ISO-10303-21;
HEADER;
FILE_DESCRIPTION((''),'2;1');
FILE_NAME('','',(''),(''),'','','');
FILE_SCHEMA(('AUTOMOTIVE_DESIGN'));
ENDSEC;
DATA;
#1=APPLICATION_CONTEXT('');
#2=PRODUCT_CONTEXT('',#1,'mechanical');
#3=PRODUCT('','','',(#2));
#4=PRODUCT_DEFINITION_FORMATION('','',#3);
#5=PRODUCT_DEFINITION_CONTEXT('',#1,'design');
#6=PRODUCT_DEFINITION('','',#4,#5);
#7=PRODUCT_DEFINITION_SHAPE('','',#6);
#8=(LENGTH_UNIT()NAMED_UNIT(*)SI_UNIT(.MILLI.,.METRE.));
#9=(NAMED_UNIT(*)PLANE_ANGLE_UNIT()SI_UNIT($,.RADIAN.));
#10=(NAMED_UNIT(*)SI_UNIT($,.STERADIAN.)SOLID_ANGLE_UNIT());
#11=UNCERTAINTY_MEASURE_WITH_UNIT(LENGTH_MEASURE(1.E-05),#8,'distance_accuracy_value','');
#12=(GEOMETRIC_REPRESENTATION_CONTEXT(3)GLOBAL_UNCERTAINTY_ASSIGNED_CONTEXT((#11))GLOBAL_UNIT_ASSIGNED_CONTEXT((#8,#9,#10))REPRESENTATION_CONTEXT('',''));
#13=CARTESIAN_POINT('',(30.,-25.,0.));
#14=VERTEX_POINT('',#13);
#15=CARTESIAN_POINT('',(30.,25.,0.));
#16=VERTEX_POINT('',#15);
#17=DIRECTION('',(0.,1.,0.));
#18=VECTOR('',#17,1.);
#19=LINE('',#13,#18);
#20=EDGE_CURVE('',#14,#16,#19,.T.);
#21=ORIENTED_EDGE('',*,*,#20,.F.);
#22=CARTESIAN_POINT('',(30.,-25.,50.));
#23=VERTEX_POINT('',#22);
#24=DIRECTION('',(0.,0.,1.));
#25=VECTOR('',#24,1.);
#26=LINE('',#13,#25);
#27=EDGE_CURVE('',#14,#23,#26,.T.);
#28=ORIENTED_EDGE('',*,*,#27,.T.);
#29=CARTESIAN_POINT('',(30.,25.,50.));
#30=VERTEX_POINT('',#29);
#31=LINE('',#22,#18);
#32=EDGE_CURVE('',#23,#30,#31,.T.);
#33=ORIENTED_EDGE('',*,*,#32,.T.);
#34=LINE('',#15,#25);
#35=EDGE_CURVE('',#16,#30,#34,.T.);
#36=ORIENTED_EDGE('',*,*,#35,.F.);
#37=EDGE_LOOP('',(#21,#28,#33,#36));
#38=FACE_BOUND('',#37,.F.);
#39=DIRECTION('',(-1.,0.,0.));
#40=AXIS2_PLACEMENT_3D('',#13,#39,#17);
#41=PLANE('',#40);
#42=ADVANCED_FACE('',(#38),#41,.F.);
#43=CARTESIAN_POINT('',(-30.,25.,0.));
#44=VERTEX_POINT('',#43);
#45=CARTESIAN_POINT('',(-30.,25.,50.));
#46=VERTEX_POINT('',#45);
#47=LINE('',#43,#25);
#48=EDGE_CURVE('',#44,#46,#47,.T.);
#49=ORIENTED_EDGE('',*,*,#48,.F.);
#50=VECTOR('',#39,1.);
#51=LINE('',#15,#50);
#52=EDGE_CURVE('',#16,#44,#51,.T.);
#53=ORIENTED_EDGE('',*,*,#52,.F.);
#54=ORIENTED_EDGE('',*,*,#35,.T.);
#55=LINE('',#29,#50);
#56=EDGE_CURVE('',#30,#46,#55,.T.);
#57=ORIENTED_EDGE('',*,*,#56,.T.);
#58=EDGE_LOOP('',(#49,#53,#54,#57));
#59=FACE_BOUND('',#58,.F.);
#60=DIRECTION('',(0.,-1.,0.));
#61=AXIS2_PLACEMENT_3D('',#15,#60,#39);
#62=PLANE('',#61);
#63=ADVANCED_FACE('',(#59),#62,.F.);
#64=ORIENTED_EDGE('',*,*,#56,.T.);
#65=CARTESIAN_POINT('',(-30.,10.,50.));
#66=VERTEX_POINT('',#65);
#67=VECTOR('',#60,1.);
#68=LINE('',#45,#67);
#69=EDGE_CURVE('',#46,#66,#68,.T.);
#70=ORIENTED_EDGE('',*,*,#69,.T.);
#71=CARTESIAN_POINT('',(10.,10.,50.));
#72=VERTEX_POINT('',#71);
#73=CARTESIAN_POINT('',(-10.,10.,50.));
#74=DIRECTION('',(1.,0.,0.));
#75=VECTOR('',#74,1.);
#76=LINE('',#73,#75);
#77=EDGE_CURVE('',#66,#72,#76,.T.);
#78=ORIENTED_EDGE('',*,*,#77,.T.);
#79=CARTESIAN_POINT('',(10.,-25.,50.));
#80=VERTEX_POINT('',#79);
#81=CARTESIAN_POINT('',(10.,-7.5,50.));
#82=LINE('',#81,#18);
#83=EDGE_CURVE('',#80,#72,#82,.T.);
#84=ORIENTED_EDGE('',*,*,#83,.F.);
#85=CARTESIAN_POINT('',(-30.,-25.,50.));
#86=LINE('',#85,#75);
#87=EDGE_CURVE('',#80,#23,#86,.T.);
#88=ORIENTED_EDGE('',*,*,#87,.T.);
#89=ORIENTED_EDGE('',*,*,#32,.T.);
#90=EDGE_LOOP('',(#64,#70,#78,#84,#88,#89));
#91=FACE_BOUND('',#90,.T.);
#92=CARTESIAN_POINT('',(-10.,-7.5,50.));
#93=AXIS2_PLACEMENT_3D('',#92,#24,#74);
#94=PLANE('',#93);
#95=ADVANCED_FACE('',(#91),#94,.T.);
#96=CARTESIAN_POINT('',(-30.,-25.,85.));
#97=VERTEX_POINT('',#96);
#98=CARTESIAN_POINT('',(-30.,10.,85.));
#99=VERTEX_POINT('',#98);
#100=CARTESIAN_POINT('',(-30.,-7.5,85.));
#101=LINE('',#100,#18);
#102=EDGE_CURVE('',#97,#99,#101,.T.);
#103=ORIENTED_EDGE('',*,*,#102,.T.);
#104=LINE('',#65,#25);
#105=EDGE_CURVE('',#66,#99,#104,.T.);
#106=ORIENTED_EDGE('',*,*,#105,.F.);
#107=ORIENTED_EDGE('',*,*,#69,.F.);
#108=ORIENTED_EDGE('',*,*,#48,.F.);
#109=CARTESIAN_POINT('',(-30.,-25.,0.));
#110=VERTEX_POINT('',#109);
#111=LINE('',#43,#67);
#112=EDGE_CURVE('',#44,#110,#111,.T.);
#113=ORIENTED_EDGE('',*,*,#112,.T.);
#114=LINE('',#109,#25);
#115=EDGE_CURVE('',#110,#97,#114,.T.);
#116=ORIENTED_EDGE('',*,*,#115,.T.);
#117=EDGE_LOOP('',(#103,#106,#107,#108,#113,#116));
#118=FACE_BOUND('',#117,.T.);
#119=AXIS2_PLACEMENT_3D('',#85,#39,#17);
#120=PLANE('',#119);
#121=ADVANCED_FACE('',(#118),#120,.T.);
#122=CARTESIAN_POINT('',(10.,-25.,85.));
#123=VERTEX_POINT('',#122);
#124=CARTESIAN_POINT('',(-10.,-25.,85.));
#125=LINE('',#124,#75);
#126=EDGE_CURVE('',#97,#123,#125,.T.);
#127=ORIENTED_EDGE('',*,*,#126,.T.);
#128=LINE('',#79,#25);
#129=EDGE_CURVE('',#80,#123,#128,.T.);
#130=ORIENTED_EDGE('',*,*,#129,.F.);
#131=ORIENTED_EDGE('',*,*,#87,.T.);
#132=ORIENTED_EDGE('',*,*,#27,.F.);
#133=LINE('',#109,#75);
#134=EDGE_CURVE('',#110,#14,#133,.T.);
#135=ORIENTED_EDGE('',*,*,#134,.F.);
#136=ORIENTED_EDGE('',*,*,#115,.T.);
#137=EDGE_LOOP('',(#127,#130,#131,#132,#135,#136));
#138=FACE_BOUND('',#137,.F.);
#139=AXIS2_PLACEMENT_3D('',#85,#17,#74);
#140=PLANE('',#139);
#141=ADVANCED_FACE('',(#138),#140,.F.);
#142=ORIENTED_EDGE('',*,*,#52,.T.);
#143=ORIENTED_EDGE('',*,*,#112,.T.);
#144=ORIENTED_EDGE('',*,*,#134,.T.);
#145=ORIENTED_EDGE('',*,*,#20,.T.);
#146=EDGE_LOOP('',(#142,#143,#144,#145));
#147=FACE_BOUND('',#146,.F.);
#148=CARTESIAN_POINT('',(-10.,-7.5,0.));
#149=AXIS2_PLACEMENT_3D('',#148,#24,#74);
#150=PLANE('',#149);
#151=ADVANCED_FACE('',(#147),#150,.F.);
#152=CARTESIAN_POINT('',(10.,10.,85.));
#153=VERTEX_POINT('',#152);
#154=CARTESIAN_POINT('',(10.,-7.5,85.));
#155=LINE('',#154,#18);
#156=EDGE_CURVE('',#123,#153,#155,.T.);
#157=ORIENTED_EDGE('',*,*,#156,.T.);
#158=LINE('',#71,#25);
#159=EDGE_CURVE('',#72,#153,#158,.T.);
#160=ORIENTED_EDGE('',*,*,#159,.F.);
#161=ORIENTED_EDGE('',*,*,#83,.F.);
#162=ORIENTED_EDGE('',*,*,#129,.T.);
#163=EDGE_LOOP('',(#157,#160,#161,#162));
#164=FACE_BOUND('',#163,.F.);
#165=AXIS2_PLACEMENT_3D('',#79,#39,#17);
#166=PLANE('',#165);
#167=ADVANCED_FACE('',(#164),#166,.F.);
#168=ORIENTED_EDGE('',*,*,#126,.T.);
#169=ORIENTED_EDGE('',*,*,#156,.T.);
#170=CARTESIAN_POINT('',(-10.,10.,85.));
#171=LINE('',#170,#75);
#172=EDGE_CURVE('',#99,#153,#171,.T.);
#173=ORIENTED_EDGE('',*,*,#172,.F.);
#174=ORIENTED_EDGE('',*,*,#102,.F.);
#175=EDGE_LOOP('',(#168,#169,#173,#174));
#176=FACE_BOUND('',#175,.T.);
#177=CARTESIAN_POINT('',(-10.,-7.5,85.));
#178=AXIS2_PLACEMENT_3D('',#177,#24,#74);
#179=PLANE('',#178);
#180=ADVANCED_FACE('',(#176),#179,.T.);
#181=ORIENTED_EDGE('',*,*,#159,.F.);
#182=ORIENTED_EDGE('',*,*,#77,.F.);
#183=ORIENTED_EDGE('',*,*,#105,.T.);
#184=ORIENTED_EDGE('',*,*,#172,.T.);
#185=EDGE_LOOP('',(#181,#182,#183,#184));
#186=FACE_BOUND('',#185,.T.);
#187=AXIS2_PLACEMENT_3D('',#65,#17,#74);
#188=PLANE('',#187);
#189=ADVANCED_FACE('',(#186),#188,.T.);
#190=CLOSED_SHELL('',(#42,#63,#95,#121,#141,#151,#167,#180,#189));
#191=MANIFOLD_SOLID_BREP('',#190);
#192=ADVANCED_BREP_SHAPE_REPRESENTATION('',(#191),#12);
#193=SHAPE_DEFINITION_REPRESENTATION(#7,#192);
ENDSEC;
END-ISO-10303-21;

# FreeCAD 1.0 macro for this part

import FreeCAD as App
import Part
import Sketcher
from FreeCAD import Vector
Q = App.Units.Quantity


def add_polygon(sketch, points):
    """Adds a closed chain of lines whose ends are joined by coincident constraints."""
    first, n = sketch.GeometryCount, len(points)
    for a, b in zip(points, points[1:] + points[:1]):
        sketch.addGeometry(Part.LineSegment(App.Vector(*a, 0), App.Vector(*b, 0)), False)
    for i in range(n):
        sketch.addConstraint(Sketcher.Constraint("Coincident", first + i, 2, first + (i + 1) % n, 1))

doc = App.newDocument("Part")
body = doc.addObject("PartDesign::Body", "Body")

sketch1 = body.newObject("Sketcher::SketchObject", "Sketch")
sketch1.AttachmentSupport = (doc.getObject("XY_Plane"), [""])
sketch1.MapMode = "FlatFace"
add_polygon(sketch1, [(-30, -25), (30, -25), (30, 25), (-30, 25)])
sketch1.addConstraint([
    Sketcher.Constraint("Horizontal", 0),
    Sketcher.Constraint("Vertical", 1),
    Sketcher.Constraint("Horizontal", 2),
    Sketcher.Constraint("Vertical", 3),
    Sketcher.Constraint("Symmetric", 0, 2, 2, 2, -1, 1),
    Sketcher.Constraint("DistanceX", 0, 1, 0, 2, Q("60 mm")),
    Sketcher.Constraint("DistanceY", 1, 1, 1, 2, Q("50 mm")),
])
pad1 = body.newObject("PartDesign::Pad", "Pad")
pad1.Profile = sketch1
pad1.Length = 50

sketch2 = body.newObject("Sketcher::SketchObject", "Sketch001")
sketch2.AttachmentSupport = (doc.getObject("XY_Plane"), [""])
sketch2.MapMode = "FlatFace"
sketch2.AttachmentOffset = App.Placement(Vector(0, 0, 50), App.Rotation())
add_polygon(sketch2, [(-30, 10), (-30, -25), (10, -25), (10, 10)])
sketch2.addConstraint([
    Sketcher.Constraint("Vertical", 0),
    Sketcher.Constraint("Horizontal", 1),
    Sketcher.Constraint("Vertical", 2),
    Sketcher.Constraint("Horizontal", 3),
    Sketcher.Constraint("DistanceX", 1, 1, 1, 2, Q("40 mm")),
    Sketcher.Constraint("DistanceY", 0, 2, 0, 1, Q("35 mm")),
    Sketcher.Constraint("DistanceX", 0, 2, -1, 1, Q("30 mm")),
    Sketcher.Constraint("DistanceY", 0, 2, -1, 1, Q("25 mm")),
])
pad2 = body.newObject("PartDesign::Pad", "Pad001")
pad2.Profile = sketch2
pad2.Length = 35

doc.recompute()
